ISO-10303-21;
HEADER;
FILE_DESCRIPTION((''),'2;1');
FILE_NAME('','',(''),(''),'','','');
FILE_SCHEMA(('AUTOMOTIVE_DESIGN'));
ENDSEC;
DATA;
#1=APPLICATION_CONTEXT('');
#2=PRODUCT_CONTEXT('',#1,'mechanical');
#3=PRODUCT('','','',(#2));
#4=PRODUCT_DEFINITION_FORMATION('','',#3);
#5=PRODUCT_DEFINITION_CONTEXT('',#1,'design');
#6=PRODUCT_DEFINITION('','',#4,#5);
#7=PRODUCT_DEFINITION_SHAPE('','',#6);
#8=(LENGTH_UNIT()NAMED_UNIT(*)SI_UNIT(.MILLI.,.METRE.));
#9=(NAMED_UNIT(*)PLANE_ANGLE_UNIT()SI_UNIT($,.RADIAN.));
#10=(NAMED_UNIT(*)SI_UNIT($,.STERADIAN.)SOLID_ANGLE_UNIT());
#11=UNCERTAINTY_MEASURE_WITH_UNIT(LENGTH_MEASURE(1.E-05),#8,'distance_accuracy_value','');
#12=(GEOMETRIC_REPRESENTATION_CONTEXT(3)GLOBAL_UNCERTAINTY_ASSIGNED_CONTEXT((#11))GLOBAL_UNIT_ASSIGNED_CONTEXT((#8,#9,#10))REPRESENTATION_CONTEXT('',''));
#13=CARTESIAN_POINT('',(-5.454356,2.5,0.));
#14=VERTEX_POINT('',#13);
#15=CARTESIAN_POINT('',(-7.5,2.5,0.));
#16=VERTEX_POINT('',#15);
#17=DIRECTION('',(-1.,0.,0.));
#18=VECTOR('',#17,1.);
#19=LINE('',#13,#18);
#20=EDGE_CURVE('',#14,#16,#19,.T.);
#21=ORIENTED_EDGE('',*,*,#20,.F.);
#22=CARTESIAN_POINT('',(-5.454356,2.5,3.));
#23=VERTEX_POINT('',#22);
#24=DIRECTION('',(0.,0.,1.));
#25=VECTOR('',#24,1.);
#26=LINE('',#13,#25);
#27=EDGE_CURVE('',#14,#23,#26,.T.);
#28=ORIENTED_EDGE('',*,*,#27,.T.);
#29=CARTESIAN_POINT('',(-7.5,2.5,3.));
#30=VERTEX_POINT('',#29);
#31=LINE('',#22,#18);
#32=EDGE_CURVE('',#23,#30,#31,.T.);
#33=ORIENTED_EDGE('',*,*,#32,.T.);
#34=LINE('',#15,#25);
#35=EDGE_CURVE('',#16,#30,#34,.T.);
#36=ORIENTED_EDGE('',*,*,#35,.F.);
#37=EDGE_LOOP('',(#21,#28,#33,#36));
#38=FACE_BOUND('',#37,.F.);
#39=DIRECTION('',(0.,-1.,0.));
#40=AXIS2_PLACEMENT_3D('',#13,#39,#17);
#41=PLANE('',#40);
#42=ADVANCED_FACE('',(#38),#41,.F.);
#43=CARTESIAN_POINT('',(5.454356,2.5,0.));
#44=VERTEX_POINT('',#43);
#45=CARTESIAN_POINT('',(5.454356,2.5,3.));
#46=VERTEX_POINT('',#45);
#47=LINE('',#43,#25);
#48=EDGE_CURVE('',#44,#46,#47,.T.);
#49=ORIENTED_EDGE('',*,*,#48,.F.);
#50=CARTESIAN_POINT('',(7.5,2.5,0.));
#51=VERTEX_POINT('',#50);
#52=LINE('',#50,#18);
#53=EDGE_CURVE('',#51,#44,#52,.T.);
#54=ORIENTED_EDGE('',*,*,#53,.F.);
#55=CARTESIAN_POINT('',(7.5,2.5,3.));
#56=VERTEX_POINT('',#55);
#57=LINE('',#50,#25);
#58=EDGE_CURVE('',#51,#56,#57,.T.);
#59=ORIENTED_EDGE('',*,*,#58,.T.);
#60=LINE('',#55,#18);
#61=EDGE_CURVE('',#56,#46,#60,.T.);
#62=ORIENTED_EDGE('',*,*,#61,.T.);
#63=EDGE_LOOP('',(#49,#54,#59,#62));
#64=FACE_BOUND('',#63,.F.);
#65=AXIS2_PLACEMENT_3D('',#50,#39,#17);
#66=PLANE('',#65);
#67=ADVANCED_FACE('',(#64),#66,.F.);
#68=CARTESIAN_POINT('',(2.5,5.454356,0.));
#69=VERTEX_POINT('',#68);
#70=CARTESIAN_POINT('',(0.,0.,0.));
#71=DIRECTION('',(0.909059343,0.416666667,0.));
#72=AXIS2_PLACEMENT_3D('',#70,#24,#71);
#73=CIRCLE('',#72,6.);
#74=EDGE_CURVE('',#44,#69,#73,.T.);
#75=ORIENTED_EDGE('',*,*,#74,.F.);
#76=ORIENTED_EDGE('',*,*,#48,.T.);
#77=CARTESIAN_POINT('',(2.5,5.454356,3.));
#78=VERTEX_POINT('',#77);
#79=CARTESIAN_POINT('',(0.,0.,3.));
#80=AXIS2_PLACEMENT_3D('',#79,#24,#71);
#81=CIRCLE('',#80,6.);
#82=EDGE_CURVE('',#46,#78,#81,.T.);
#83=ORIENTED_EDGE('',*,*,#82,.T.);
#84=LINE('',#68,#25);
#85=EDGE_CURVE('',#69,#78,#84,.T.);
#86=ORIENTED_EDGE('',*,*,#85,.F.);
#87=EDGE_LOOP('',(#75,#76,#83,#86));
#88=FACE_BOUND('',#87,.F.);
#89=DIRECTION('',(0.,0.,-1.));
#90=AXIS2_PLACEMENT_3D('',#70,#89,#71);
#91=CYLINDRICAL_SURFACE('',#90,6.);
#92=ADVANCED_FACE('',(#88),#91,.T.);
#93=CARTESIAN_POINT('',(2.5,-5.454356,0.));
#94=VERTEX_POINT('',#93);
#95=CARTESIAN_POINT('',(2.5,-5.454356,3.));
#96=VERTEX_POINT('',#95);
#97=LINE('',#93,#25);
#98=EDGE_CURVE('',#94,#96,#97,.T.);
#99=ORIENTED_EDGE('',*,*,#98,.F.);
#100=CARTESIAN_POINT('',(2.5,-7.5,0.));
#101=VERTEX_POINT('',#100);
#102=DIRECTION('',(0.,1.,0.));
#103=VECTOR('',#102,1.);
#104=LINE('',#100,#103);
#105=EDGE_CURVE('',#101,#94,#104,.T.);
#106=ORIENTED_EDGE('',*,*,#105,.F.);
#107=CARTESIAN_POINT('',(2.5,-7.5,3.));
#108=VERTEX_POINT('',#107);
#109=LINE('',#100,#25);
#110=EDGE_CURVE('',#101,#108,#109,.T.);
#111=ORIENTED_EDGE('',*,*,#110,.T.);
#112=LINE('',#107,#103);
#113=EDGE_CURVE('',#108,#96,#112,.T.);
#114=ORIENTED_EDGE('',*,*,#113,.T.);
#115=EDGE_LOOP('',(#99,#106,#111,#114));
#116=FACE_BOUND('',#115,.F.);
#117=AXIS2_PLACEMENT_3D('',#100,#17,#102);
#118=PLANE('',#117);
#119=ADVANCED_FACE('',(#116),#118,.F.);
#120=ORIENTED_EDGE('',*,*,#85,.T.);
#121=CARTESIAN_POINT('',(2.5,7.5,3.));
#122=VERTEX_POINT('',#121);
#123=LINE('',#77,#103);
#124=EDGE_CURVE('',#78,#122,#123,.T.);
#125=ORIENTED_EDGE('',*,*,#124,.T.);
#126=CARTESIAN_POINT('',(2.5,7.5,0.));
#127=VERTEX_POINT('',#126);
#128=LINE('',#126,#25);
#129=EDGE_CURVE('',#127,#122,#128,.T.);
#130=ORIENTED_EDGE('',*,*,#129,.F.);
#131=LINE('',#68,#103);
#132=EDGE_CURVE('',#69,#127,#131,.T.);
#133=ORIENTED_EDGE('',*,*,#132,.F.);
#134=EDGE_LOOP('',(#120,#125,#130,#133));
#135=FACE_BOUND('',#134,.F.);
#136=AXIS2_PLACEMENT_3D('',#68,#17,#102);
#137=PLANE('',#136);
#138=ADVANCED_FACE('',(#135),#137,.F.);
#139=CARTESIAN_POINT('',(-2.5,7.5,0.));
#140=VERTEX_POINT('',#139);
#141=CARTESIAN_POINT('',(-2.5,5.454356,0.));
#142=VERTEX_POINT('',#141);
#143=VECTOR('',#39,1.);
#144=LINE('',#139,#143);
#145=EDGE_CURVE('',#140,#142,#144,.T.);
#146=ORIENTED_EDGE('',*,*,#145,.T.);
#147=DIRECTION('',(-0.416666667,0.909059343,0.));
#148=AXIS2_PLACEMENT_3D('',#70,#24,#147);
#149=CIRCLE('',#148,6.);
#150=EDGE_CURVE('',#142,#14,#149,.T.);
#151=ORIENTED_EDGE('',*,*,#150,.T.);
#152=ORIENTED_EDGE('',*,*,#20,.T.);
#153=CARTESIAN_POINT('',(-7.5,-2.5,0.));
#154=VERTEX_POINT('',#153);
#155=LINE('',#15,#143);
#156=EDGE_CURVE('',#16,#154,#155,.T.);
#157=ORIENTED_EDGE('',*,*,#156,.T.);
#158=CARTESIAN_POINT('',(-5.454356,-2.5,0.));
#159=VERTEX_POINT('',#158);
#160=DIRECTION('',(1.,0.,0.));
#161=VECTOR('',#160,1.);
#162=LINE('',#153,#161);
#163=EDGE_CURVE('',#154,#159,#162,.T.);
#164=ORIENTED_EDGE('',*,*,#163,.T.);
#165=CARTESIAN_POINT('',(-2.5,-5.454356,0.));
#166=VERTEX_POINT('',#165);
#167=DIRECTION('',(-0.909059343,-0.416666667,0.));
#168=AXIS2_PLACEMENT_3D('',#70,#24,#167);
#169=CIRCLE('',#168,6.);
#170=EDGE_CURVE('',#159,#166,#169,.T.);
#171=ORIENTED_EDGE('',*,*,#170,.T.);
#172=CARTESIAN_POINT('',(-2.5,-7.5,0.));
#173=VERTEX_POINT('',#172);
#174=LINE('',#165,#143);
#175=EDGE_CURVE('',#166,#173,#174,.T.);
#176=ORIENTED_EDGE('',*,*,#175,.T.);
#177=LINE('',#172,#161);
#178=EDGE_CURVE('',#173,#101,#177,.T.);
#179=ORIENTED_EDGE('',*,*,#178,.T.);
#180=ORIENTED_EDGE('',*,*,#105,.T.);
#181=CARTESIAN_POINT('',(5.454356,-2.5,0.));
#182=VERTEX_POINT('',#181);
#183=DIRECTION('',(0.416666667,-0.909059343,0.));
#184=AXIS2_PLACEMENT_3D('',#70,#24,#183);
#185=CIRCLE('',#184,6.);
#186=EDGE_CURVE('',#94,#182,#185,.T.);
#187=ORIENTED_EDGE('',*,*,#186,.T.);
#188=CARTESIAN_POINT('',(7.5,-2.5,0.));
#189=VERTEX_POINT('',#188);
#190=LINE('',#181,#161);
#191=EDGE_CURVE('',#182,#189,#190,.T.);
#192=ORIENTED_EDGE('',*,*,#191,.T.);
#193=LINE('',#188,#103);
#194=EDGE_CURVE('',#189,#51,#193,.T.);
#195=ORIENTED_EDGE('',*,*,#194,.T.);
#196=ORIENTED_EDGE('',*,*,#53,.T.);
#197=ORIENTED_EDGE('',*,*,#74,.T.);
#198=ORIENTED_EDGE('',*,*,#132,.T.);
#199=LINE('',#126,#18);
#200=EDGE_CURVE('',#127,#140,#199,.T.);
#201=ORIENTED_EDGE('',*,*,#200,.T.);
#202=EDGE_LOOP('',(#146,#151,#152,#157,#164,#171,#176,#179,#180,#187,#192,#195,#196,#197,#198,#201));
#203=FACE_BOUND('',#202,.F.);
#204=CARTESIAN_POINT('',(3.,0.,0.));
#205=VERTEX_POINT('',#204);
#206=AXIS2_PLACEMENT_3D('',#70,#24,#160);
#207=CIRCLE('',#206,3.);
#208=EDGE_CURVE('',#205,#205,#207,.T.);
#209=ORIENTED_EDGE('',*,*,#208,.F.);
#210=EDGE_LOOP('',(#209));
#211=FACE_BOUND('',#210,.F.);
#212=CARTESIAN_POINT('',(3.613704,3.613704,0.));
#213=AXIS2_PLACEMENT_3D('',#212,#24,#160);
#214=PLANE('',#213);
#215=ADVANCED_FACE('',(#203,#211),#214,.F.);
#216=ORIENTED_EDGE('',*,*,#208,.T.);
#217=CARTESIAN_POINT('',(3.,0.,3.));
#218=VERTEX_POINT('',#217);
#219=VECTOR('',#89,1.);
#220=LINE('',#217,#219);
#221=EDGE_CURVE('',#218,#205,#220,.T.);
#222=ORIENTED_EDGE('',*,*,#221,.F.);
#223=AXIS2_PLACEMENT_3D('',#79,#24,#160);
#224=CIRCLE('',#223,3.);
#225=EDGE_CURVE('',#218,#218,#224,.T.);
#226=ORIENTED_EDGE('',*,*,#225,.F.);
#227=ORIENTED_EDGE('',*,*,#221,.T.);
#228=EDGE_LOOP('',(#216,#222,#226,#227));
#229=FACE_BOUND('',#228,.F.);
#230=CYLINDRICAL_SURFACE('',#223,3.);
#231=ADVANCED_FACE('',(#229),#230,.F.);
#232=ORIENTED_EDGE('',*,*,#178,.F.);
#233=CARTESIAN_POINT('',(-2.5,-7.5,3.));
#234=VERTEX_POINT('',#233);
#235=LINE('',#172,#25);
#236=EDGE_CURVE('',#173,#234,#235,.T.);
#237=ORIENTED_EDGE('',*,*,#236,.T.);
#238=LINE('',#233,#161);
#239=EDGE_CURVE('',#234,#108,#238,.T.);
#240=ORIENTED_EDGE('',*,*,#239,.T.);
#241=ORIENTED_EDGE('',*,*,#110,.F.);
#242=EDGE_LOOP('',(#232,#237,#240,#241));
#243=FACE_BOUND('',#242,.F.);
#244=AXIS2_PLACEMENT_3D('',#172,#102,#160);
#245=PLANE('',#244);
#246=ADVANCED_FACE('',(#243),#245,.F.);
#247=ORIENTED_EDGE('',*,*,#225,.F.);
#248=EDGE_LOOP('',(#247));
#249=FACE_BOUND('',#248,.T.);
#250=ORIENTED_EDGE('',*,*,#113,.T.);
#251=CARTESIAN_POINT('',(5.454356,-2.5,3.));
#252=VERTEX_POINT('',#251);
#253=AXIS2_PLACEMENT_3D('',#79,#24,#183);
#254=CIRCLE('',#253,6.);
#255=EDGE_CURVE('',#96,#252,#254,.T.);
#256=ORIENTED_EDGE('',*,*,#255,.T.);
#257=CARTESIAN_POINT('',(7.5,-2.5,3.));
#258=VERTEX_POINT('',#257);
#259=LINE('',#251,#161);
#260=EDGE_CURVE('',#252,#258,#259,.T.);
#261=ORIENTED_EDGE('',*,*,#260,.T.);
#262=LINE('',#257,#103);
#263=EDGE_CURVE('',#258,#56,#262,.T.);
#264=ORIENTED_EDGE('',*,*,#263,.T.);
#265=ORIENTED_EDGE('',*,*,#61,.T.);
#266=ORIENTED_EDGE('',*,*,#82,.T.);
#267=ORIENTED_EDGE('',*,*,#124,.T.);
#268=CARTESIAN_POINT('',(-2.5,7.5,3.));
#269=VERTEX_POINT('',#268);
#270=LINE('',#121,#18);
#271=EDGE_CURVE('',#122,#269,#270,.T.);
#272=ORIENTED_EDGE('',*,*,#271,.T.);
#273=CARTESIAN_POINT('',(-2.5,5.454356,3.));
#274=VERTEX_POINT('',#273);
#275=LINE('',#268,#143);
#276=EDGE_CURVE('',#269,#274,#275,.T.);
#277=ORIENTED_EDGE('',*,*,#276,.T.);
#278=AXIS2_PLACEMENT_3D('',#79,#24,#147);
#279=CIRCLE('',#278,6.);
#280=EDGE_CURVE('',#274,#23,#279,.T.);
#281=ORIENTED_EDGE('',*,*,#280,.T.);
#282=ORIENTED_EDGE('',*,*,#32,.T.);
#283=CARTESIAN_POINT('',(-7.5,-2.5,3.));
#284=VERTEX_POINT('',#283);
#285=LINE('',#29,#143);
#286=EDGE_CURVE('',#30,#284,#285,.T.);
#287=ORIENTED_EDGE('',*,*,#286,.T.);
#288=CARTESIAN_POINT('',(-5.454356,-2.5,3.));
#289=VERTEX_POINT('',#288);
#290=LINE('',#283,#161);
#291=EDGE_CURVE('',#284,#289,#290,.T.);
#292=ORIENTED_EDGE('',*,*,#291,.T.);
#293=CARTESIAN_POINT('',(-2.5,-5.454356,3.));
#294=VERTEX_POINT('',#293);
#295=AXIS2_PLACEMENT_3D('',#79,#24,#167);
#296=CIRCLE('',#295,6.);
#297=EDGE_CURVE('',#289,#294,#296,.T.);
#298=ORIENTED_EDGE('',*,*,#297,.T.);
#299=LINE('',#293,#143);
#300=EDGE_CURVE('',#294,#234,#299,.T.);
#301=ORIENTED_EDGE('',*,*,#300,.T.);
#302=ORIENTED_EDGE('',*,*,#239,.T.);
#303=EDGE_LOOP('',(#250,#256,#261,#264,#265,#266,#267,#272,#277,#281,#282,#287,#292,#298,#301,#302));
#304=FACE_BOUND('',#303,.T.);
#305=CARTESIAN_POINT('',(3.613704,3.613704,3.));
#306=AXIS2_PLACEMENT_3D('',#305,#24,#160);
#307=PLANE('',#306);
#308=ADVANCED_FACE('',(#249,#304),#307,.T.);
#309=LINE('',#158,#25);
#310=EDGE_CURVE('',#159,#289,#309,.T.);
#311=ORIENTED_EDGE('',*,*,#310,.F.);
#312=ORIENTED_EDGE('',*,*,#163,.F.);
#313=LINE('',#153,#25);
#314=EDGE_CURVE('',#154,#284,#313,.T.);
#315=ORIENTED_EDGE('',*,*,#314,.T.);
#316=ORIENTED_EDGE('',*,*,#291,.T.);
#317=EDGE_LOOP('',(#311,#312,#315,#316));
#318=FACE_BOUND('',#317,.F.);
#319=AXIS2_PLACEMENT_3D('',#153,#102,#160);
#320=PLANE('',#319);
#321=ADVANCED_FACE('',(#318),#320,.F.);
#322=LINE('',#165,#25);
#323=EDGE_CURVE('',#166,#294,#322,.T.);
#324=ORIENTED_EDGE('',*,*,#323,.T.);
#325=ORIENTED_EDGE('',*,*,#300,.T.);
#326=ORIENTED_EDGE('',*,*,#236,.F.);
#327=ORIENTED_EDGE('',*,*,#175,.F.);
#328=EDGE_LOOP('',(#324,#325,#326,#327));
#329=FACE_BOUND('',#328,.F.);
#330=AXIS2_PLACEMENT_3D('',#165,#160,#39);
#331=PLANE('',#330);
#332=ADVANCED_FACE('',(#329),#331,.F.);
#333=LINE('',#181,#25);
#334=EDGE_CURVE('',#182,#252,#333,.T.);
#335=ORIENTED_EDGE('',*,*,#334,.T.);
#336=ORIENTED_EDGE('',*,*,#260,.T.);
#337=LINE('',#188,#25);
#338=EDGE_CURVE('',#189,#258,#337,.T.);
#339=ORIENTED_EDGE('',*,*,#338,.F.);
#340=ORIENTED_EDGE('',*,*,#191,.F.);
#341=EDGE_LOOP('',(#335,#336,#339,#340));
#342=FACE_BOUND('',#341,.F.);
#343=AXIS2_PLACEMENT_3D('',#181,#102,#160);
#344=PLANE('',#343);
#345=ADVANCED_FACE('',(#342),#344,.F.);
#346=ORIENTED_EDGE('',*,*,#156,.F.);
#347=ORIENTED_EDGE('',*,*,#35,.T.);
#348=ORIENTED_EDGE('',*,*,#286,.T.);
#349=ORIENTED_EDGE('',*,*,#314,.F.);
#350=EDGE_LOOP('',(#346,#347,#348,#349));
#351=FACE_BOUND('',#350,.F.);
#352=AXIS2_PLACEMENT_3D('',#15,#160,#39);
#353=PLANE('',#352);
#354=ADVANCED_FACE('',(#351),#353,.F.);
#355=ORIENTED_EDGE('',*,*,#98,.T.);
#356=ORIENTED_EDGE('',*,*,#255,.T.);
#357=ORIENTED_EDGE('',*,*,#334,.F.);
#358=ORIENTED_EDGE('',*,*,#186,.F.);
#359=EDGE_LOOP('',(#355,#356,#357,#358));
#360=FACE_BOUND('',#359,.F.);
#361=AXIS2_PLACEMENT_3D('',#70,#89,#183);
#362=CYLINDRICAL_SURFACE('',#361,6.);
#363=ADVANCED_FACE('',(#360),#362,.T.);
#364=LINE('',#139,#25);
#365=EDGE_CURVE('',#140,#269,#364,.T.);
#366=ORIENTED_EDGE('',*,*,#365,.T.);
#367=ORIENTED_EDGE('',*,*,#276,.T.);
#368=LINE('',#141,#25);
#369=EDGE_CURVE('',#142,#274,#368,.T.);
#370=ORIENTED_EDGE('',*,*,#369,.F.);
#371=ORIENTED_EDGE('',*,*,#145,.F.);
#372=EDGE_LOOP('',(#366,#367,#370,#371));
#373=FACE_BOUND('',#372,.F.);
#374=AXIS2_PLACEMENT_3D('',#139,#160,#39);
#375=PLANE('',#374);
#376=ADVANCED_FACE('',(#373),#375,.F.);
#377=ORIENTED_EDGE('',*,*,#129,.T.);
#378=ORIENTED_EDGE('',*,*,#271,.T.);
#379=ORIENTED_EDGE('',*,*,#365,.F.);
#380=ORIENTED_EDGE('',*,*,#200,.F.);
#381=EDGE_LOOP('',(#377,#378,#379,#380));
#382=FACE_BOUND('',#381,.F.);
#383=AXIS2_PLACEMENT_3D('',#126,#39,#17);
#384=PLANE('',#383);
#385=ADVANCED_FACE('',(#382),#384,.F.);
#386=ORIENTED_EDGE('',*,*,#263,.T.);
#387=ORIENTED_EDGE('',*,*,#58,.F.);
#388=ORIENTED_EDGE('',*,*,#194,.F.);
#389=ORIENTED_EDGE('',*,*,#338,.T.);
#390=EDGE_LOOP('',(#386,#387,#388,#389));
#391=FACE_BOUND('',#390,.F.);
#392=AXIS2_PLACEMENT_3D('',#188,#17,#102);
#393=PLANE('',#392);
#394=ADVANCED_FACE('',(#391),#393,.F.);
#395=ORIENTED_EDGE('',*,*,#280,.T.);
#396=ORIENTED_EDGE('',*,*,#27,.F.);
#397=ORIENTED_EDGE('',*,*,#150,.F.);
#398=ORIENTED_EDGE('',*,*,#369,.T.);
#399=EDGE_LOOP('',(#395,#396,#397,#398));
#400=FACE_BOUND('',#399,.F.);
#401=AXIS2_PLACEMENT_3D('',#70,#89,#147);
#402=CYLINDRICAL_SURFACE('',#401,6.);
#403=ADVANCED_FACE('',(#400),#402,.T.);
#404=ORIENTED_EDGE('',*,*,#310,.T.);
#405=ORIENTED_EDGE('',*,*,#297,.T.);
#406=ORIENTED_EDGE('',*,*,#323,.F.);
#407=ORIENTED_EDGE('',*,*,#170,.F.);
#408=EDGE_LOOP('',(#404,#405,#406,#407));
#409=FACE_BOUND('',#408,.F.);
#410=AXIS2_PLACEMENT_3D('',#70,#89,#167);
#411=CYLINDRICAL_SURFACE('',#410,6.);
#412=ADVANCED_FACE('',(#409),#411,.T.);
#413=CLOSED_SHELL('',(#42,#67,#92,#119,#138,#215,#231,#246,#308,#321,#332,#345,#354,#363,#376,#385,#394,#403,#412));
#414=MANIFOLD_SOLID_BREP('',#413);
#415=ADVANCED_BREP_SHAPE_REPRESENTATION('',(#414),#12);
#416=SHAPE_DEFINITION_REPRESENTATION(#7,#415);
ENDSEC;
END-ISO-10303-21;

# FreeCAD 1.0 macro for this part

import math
import FreeCAD as App
import Part
import Sketcher
from FreeCAD import Vector

doc = App.newDocument("Part")
body = doc.addObject("PartDesign::Body", "Body")

# Sketch on XY plane
sketch1 = doc.addObject("Sketcher::SketchObject", "Sketch")
body.addObject(sketch1)
sketch1.AttachmentSupport = (doc.XY_Plane, [""])
sketch1.MapMode = "FlatFace"
sketch1.addGeometry(Part.ArcOfCircle(Part.Circle(Vector(0, 0, 0), Vector(0, 0, 1), 6), math.radians(25), math.radians(65)), False)
sketch1.addGeometry(Part.LineSegment(Vector(2.5, 5.5, 0), Vector(2.5, 7.5, 0)), False)
sketch1.addGeometry(Part.LineSegment(Vector(2.5, 7.5, 0), Vector(-2.5, 7.5, 0)), False)
sketch1.addGeometry(Part.LineSegment(Vector(-2.5, 7.5, 0), Vector(-2.5, 5.5, 0)), False)
sketch1.addGeometry(Part.ArcOfCircle(Part.Circle(Vector(0, 0, 0), Vector(0, 0, 1), 6), math.radians(115), math.radians(155)), False)
sketch1.addGeometry(Part.LineSegment(Vector(-5.5, 2.5, 0), Vector(-7.5, 2.5, 0)), False)
sketch1.addGeometry(Part.LineSegment(Vector(-7.5, 2.5, 0), Vector(-7.5, -2.5, 0)), False)
sketch1.addGeometry(Part.LineSegment(Vector(-7.5, -2.5, 0), Vector(-5.5, -2.5, 0)), False)
sketch1.addGeometry(Part.ArcOfCircle(Part.Circle(Vector(0, 0, 0), Vector(0, 0, 1), 6), math.radians(-155), math.radians(-115)), False)
sketch1.addGeometry(Part.LineSegment(Vector(-2.5, -5.5, 0), Vector(-2.5, -7.5, 0)), False)
sketch1.addGeometry(Part.LineSegment(Vector(-2.5, -7.5, 0), Vector(2.5, -7.5, 0)), False)
sketch1.addGeometry(Part.LineSegment(Vector(2.5, -7.5, 0), Vector(2.5, -5.5, 0)), False)
sketch1.addGeometry(Part.ArcOfCircle(Part.Circle(Vector(0, 0, 0), Vector(0, 0, 1), 6), math.radians(-65), math.radians(-25)), False)
sketch1.addGeometry(Part.LineSegment(Vector(5.5, -2.5, 0), Vector(7.5, -2.5, 0)), False)
sketch1.addGeometry(Part.LineSegment(Vector(7.5, -2.5, 0), Vector(7.5, 2.5, 0)), False)
sketch1.addGeometry(Part.LineSegment(Vector(7.5, 2.5, 0), Vector(5.5, 2.5, 0)), False)
sketch1.addConstraint(Sketcher.Constraint("Coincident", 0, 2, 1, 1))
sketch1.addConstraint(Sketcher.Constraint("Coincident", 1, 2, 2, 1))
sketch1.addConstraint(Sketcher.Constraint("Coincident", 2, 2, 3, 1))
sketch1.addConstraint(Sketcher.Constraint("Coincident", 3, 2, 4, 1))
sketch1.addConstraint(Sketcher.Constraint("Coincident", 4, 2, 5, 1))
sketch1.addConstraint(Sketcher.Constraint("Coincident", 5, 2, 6, 1))
sketch1.addConstraint(Sketcher.Constraint("Coincident", 6, 2, 7, 1))
sketch1.addConstraint(Sketcher.Constraint("Coincident", 7, 2, 8, 1))
sketch1.addConstraint(Sketcher.Constraint("Coincident", 8, 2, 9, 1))
sketch1.addConstraint(Sketcher.Constraint("Coincident", 9, 2, 10, 1))
sketch1.addConstraint(Sketcher.Constraint("Coincident", 10, 2, 11, 1))
sketch1.addConstraint(Sketcher.Constraint("Coincident", 11, 2, 12, 1))
sketch1.addConstraint(Sketcher.Constraint("Coincident", 12, 2, 13, 1))
sketch1.addConstraint(Sketcher.Constraint("Coincident", 13, 2, 14, 1))
sketch1.addConstraint(Sketcher.Constraint("Coincident", 14, 2, 15, 1))
sketch1.addConstraint(Sketcher.Constraint("Coincident", 15, 2, 0, 1))
sketch1.addConstraint(Sketcher.Constraint("Vertical", 1))
sketch1.addConstraint(Sketcher.Constraint("Horizontal", 2))
sketch1.addConstraint(Sketcher.Constraint("Vertical", 3))
sketch1.addConstraint(Sketcher.Constraint("Horizontal", 5))
sketch1.addConstraint(Sketcher.Constraint("Vertical", 6))
sketch1.addConstraint(Sketcher.Constraint("Horizontal", 7))
sketch1.addConstraint(Sketcher.Constraint("Vertical", 9))
sketch1.addConstraint(Sketcher.Constraint("Horizontal", 10))
sketch1.addConstraint(Sketcher.Constraint("Vertical", 11))
sketch1.addConstraint(Sketcher.Constraint("Horizontal", 13))
sketch1.addConstraint(Sketcher.Constraint("Vertical", 14))
sketch1.addConstraint(Sketcher.Constraint("Horizontal", 15))
sketch1.addConstraint(Sketcher.Constraint("Coincident", 0, 3, -1, 1))
sketch1.addConstraint(Sketcher.Constraint("Coincident", 4, 3, -1, 1))
sketch1.addConstraint(Sketcher.Constraint("Coincident", 8, 3, -1, 1))
sketch1.addConstraint(Sketcher.Constraint("Coincident", 12, 3, -1, 1))
sketch1.addConstraint(Sketcher.Constraint("Equal", 0, 4))
sketch1.addConstraint(Sketcher.Constraint("Equal", 4, 8))
sketch1.addConstraint(Sketcher.Constraint("Equal", 8, 12))
sketch1.addConstraint(Sketcher.Constraint("Symmetric", 1, 2, 9, 2, -1, 1))
sketch1.addConstraint(Sketcher.Constraint("Symmetric", 5, 2, 13, 2, -1, 1))
sketch1.addConstraint(Sketcher.Constraint("Horizontal", 0, 2, 3, 2))
sketch1.addConstraint(Sketcher.Constraint("Horizontal", 8, 2, 11, 2))
sketch1.addConstraint(Sketcher.Constraint("Horizontal", 7, 2, 12, 2))
sketch1.addConstraint(Sketcher.Constraint("Horizontal", 5, 2, 14, 2))
sketch1.addConstraint(Sketcher.Constraint("Equal", 15, 1))
sketch1.addConstraint(Sketcher.Constraint("Equal", 10, 6))
sketch1.addConstraint(Sketcher.Constraint("Radius", 0, 6.0))
sketch1.addConstraint(Sketcher.Constraint("DistanceX", 2, 2, 2, 1, 5.0))
sketch1.addConstraint(Sketcher.Constraint("DistanceY", 4, 2, 2, 2, 5.0))
pad1 = doc.addObject("PartDesign::Pad", "Pad")
body.addObject(pad1)
pad1.Profile = sketch1
pad1.Length = 3

# Sketch on XY plane
sketch2 = doc.addObject("Sketcher::SketchObject", "Sketch001")
body.addObject(sketch2)
sketch2.AttachmentSupport = (doc.XY_Plane, [""])
sketch2.MapMode = "FlatFace"
sketch2.AttachmentOffset = App.Placement(Vector(0, 0, 3), App.Rotation())
sketch2.addGeometry(Part.Circle(Vector(0, 0, 0), Vector(0, 0, 1), 3), False)
sketch2.addConstraint(Sketcher.Constraint("Coincident", 0, 3, -1, 1))
sketch2.addConstraint(Sketcher.Constraint("Diameter", 0, 6.0))
pocket1 = doc.addObject("PartDesign::Pocket", "Pocket")
body.addObject(pocket1)
pocket1.Profile = sketch2
pocket1.Length = 25

doc.recompute()
